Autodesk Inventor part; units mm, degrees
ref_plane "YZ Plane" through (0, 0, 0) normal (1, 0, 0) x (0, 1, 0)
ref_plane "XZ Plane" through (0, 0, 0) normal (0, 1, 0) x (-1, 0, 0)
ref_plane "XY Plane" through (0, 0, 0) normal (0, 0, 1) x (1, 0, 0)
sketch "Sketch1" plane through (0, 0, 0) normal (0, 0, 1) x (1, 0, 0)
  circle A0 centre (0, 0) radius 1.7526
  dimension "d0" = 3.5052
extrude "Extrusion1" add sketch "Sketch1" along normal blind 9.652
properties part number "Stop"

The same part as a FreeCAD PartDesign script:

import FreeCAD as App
import Part
import Sketcher
from FreeCAD import Vector
Q = App.Units.Quantity

doc = App.newDocument("Part")
body = doc.addObject("PartDesign::Body", "Body")

# Sketch on XY plane
sketch1 = doc.addObject("Sketcher::SketchObject", "Sketch")
body.addObject(sketch1)
sketch1.AttachmentSupport = (doc.XY_Plane, [""])
sketch1.MapMode = "FlatFace"
sketch1.addGeometry(Part.Circle(Vector(0, 0, 0), Vector(0, 0, 1), 1.8), False)
sketch1.addConstraint([
    Sketcher.Constraint("Coincident", 0, 3, -1, 1),
    Sketcher.Constraint("Diameter", 0, Q("0.138 in")),
])
pad1 = doc.addObject("PartDesign::Pad", "Pad")
body.addObject(pad1)
pad1.Profile = sketch1
pad1.Length = Q("0.38 in")

doc.recompute()
